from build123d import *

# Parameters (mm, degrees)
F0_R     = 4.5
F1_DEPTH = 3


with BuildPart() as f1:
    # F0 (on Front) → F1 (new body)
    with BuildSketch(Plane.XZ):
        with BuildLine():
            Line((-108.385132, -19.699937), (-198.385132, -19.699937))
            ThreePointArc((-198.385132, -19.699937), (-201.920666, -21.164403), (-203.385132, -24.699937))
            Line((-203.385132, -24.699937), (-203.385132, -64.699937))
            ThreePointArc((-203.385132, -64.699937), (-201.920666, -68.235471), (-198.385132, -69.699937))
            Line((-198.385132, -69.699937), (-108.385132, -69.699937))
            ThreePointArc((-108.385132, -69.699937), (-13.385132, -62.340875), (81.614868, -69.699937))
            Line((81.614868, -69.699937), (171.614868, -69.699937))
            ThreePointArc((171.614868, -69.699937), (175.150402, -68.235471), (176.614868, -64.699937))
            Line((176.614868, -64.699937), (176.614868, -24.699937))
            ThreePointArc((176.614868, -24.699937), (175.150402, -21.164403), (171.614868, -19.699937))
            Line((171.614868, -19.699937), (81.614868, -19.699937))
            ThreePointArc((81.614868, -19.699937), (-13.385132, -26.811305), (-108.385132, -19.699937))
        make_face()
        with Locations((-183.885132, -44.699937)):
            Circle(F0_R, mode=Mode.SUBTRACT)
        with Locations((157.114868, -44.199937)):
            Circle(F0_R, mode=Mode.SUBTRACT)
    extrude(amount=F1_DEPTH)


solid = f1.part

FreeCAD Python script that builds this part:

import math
import FreeCAD as App
import Part
import Sketcher
from FreeCAD import Vector
Q = App.Units.Quantity

doc = App.newDocument("Part")
params = doc.addObject("Spreadsheet::Sheet", "Params")
for row, (alias, value) in enumerate([
    ("sketch1_diameter", "9 mm"),
    ("sketch1_radius", "5 mm"),
    ("sketch1_width", "90 mm"),
    ("sketch1_height", "40 mm"),
    ("pad1_length", "3 mm"),
], start=1):
    params.set(f"A{row}", alias)
    params.set(f"B{row}", "=" + value)
    params.setAlias(f"B{row}", alias)

body = doc.addObject("PartDesign::Body", "Body")

# Sketch on XZ plane
sketch1 = body.newObject("Sketcher::SketchObject", "Sketch")
sketch1.AttachmentSupport = (doc.getObject("XZ_Plane"), [""])
sketch1.MapMode = "FlatFace"
sketch1.addGeometry([
    Part.LineSegment(Vector(-108.4, -19.7, 0), Vector(-198.4, -19.7, 0)),  # 0
    Part.ArcOfCircle(Part.Circle(Vector(-198.4, -24.7, 0), Vector(0, 0, 1), 5), math.radians(90), math.radians(180)),  # 1
    Part.LineSegment(Vector(-203.4, -24.7, 0), Vector(-203.4, -64.7, 0)),  # 2
    Part.ArcOfCircle(Part.Circle(Vector(-198.4, -64.7, 0), Vector(0, 0, 1), 5), math.radians(180), math.radians(270)),  # 3
    Part.LineSegment(Vector(-198.4, -69.7, 0), Vector(-108.4, -69.7, 0)),  # 4
    Part.ArcOfCircle(Part.Circle(Vector(-13.4, -679.2, 0), Vector(0, 0, 1), 616.9), math.radians(81.14), math.radians(98.86)),  # 5
    Part.LineSegment(Vector(81.6, -69.7, 0), Vector(171.6, -69.7, 0)),  # 6
    Part.ArcOfCircle(Part.Circle(Vector(171.6, -64.7, 0), Vector(0, 0, 1), 5), math.radians(-90), math.radians(0)),  # 7
    Part.LineSegment(Vector(176.6, -64.7, 0), Vector(176.6, -24.7, 0)),  # 8
    Part.ArcOfCircle(Part.Circle(Vector(171.6, -24.7, 0), Vector(0, 0, 1), 5), math.radians(0), math.radians(90)),  # 9
    Part.LineSegment(Vector(171.6, -19.7, 0), Vector(81.6, -19.7, 0)),  # 10
    Part.ArcOfCircle(Part.Circle(Vector(-13.4, 611.3, 0), Vector(0, 0, 1), 638.1), math.radians(-98.56), math.radians(-81.44)),  # 11
    Part.Circle(Vector(-183.9, -44.7, 0), Vector(0, 0, 1), 4.5),  # 12
    Part.Circle(Vector(157.1, -44.2, 0), Vector(0, 0, 1), 4.5),  # 13
], False)
sketch1.addConstraint([
    Sketcher.Constraint("Tangent", 0, 2, 1, 1),
    Sketcher.Constraint("Tangent", 1, 2, 2, 1),
    Sketcher.Constraint("Tangent", 2, 2, 3, 1),
    Sketcher.Constraint("Tangent", 3, 2, 4, 1),
    Sketcher.Constraint("Coincident", 4, 2, 5, 2),
    Sketcher.Constraint("Coincident", 5, 1, 6, 1),
    Sketcher.Constraint("Tangent", 6, 2, 7, 1),
    Sketcher.Constraint("Tangent", 7, 2, 8, 1),
    Sketcher.Constraint("Tangent", 8, 2, 9, 1),
    Sketcher.Constraint("Tangent", 9, 2, 10, 1),
    Sketcher.Constraint("Coincident", 10, 2, 11, 2),
    Sketcher.Constraint("Coincident", 11, 1, 0, 1),
    Sketcher.Constraint("Horizontal", 0),
    Sketcher.Constraint("Vertical", 2),
    Sketcher.Constraint("Horizontal", 4),
    Sketcher.Constraint("Horizontal", 6),
    Sketcher.Constraint("Vertical", 8),
    Sketcher.Constraint("Horizontal", 10),
    Sketcher.Constraint("Equal", 1, 3),
    Sketcher.Constraint("Equal", 3, 7),
    Sketcher.Constraint("Equal", 7, 9),
    Sketcher.Constraint("Equal", 12, 13),
    Sketcher.Constraint("Horizontal", 3, 3, 7, 3),
    Sketcher.Constraint("Horizontal", 1, 3, 9, 3),
    Sketcher.Constraint("Vertical", 5, 3, 11, 3),
    Sketcher.Constraint("Equal", 0, 4),
    Sketcher.Constraint("Equal", 4, 6),
    Sketcher.Constraint("Diameter", 12, Q("9 mm")),
    Sketcher.Constraint("Radius", 1, Q("5 mm")),
    Sketcher.Constraint("DistanceX", 0, 2, 0, 1, Q("90 mm")),
    Sketcher.Constraint("DistanceY", 2, 2, 2, 1, Q("40 mm")),
    Sketcher.Constraint("DistanceX", 3, 3, 5, 3, Q("185 mm")),
    Sketcher.Constraint("DistanceY", 12, 3, 1, 3, Q("20 mm")),
    Sketcher.Constraint("DistanceX", 12, 3, 13, 3, Q("341 mm")),
    Sketcher.Constraint("DistanceX", 1, 3, 12, 3, Q("14.5 mm")),
    Sketcher.Constraint("DistanceY", 13, 3, 9, 3, Q("19.5 mm")),
    Sketcher.Constraint("Radius", 5, Q("616.869092 mm")),
    Sketcher.Constraint("Radius", 11, Q("638.103073 mm")),
    Sketcher.Constraint("DistanceX", -1, 1, 7, 3, Q("171.614868 mm")),
    Sketcher.Constraint("DistanceY", -1, 1, 11, 3, Q("611.291768 mm")),
])
sketch1.setExpression("Constraints[27]", "Params.sketch1_diameter")
sketch1.setExpression("Constraints[28]", "Params.sketch1_radius")
sketch1.setExpression("Constraints[29]", "Params.sketch1_width")
sketch1.setExpression("Constraints[30]", "Params.sketch1_height")
pad1 = body.newObject("PartDesign::Pad", "Pad")
pad1.Profile = sketch1
pad1.setExpression("Length", "Params.pad1_length")

doc.recompute()
